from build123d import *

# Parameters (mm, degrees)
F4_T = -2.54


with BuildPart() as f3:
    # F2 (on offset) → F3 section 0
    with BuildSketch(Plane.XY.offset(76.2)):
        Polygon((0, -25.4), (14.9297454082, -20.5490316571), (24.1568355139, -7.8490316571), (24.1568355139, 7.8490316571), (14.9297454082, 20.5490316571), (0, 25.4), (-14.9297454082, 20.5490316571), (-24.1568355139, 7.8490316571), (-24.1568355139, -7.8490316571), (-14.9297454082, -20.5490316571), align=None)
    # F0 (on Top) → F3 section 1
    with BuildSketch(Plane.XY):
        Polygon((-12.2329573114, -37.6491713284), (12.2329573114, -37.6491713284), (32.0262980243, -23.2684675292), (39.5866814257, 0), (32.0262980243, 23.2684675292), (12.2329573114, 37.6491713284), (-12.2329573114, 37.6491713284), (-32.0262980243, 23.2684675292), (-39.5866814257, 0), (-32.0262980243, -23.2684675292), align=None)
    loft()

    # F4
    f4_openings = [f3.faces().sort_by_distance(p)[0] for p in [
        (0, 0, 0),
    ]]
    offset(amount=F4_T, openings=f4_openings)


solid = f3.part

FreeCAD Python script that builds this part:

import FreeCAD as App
import Part
import Sketcher
from FreeCAD import Vector
Q = App.Units.Quantity


def faces_at(feature, points):
    """Names of the faces that lie closest to the given points."""
    faces = feature.Shape.Faces
    near = lambda p: min(range(len(faces)), key=lambda i: faces[i].distToShape(Part.Vertex(*p))[0])
    return sorted({f"Face{near(p) + 1}" for p in points})


def add_polygon(sketch, points):
    """Adds a closed chain of lines whose ends are joined by coincident constraints."""
    first, n = sketch.GeometryCount, len(points)
    for a, b in zip(points, points[1:] + points[:1]):
        sketch.addGeometry(Part.LineSegment(App.Vector(*a, 0), App.Vector(*b, 0)), False)
    for i in range(n):
        sketch.addConstraint(Sketcher.Constraint("Coincident", first + i, 2, first + (i + 1) % n, 1))

doc = App.newDocument("Part")
params = doc.addObject("Spreadsheet::Sheet", "Params")
for row, (alias, value) in enumerate([
    ("thickness_wall", "0.1 in"),
], start=1):
    params.set(f"A{row}", alias)
    params.set(f"B{row}", "=" + value)
    params.setAlias(f"B{row}", alias)

body = doc.addObject("PartDesign::Body", "Body")

# Sketch on XY plane
sketch1 = body.newObject("Sketcher::SketchObject", "Sketch")
sketch1.AttachmentSupport = (doc.getObject("XY_Plane"), [""])
sketch1.MapMode = "FlatFace"
sketch1.AttachmentOffset = App.Placement(Vector(0, 0, 3 * 25.4), App.Rotation())
add_polygon(sketch1, [(0, -25.4), (14.929745, -20.549032), (24.156836, -7.849032), (24.156836, 7.849032), (14.929745, 20.549032), (0, 25.4), (-14.929745, 20.549032), (-24.156836, 7.849032), (-24.156836, -7.849032), (-14.929745, -20.549032)])  # lines 0-9
sketch1.addConstraint([
    Sketcher.Constraint("Vertical", 2),
    Sketcher.Constraint("Vertical", 7),
    Sketcher.Constraint("Symmetric", 0, 2, 5, 2, -1, 1),
    Sketcher.Constraint("Symmetric", 1, 2, 6, 2, -1, 1),
    Sketcher.Constraint("Symmetric", 3, 2, 8, 2, -1, 1),
    Sketcher.Constraint("Symmetric", 4, 2, 9, 2, -1, 1),
    Sketcher.Constraint("Symmetric", 3, 2, 5, 2, -2),
    Sketcher.Constraint("PointOnObject", 4, 2, -2),
    Sketcher.Constraint("Parallel", 3, 8),
    Sketcher.Constraint("Horizontal", 2, 2, 6, 2),
    Sketcher.Constraint("Equal", 0, 1),
    Sketcher.Constraint("DistanceY", -1, 1, 4, 2, Q("1 in")),
    Sketcher.Constraint("Angle", 0, Q("18 deg")),
    Sketcher.Constraint("Angle", 1, Q("54 deg")),
    Sketcher.Constraint("DistanceY", 0, 2, 1, 2, Q("0.5 in")),
])

# Sketch on XY plane
sketch2 = body.newObject("Sketcher::SketchObject", "Sketch001")
sketch2.AttachmentSupport = (doc.getObject("XY_Plane"), [""])
sketch2.MapMode = "FlatFace"
add_polygon(sketch2, [(-12.232957, -37.649171), (12.232957, -37.649171), (32.026298, -23.268468), (39.586681, 0), (32.026298, 23.268468), (12.232957, 37.649171), (-12.232957, 37.649171), (-32.026298, 23.268468), (-39.586681, 0), (-32.026298, -23.268468)])  # lines 0-9
sketch2.addConstraint([
    Sketcher.Constraint("Horizontal", 0),
    Sketcher.Constraint("Horizontal", 5),
    Sketcher.Constraint("Symmetric", 0, 2, 5, 2, -1, 1),
    Sketcher.Constraint("Symmetric", 1, 2, 6, 2, -1, 1),
    Sketcher.Constraint("Symmetric", 2, 2, 7, 2, -1, 1),
    Sketcher.Constraint("Symmetric", 3, 2, 8, 2, -1, 1),
    Sketcher.Constraint("Symmetric", 3, 2, 6, 2, -2),
    Sketcher.Constraint("PointOnObject", 2, 2, -1),
    Sketcher.Constraint("Parallel", 4, 9),
    Sketcher.Constraint("Vertical", 0, 2, 4, 2),
    Sketcher.Constraint("Equal", 1, 2),
    Sketcher.Constraint("Angle", 1, Q("36 deg")),
    Sketcher.Constraint("Angle", 2, Q("72 deg")),
    Sketcher.Constraint("DistanceX", -1, 1, 1, 2, Q("32.026298 mm")),
    Sketcher.Constraint("DistanceX", 0, 1, 0, 2, Q("24.465915 mm")),
])

additiveloft = body.newObject("PartDesign::AdditiveLoft", "AdditiveLoft")
additiveloft.Profile = sketch1
additiveloft.Sections = [sketch2]
doc.recompute()

thickness = body.newObject("PartDesign::Thickness", "Thickness")
thickness.Base = (additiveloft, faces_at(additiveloft, [(0, 0, 0)]))
thickness.setExpression("Value", "Params.thickness_wall")
thickness.Reversed = True
thickness.Join = "Arc"

doc.recompute()
